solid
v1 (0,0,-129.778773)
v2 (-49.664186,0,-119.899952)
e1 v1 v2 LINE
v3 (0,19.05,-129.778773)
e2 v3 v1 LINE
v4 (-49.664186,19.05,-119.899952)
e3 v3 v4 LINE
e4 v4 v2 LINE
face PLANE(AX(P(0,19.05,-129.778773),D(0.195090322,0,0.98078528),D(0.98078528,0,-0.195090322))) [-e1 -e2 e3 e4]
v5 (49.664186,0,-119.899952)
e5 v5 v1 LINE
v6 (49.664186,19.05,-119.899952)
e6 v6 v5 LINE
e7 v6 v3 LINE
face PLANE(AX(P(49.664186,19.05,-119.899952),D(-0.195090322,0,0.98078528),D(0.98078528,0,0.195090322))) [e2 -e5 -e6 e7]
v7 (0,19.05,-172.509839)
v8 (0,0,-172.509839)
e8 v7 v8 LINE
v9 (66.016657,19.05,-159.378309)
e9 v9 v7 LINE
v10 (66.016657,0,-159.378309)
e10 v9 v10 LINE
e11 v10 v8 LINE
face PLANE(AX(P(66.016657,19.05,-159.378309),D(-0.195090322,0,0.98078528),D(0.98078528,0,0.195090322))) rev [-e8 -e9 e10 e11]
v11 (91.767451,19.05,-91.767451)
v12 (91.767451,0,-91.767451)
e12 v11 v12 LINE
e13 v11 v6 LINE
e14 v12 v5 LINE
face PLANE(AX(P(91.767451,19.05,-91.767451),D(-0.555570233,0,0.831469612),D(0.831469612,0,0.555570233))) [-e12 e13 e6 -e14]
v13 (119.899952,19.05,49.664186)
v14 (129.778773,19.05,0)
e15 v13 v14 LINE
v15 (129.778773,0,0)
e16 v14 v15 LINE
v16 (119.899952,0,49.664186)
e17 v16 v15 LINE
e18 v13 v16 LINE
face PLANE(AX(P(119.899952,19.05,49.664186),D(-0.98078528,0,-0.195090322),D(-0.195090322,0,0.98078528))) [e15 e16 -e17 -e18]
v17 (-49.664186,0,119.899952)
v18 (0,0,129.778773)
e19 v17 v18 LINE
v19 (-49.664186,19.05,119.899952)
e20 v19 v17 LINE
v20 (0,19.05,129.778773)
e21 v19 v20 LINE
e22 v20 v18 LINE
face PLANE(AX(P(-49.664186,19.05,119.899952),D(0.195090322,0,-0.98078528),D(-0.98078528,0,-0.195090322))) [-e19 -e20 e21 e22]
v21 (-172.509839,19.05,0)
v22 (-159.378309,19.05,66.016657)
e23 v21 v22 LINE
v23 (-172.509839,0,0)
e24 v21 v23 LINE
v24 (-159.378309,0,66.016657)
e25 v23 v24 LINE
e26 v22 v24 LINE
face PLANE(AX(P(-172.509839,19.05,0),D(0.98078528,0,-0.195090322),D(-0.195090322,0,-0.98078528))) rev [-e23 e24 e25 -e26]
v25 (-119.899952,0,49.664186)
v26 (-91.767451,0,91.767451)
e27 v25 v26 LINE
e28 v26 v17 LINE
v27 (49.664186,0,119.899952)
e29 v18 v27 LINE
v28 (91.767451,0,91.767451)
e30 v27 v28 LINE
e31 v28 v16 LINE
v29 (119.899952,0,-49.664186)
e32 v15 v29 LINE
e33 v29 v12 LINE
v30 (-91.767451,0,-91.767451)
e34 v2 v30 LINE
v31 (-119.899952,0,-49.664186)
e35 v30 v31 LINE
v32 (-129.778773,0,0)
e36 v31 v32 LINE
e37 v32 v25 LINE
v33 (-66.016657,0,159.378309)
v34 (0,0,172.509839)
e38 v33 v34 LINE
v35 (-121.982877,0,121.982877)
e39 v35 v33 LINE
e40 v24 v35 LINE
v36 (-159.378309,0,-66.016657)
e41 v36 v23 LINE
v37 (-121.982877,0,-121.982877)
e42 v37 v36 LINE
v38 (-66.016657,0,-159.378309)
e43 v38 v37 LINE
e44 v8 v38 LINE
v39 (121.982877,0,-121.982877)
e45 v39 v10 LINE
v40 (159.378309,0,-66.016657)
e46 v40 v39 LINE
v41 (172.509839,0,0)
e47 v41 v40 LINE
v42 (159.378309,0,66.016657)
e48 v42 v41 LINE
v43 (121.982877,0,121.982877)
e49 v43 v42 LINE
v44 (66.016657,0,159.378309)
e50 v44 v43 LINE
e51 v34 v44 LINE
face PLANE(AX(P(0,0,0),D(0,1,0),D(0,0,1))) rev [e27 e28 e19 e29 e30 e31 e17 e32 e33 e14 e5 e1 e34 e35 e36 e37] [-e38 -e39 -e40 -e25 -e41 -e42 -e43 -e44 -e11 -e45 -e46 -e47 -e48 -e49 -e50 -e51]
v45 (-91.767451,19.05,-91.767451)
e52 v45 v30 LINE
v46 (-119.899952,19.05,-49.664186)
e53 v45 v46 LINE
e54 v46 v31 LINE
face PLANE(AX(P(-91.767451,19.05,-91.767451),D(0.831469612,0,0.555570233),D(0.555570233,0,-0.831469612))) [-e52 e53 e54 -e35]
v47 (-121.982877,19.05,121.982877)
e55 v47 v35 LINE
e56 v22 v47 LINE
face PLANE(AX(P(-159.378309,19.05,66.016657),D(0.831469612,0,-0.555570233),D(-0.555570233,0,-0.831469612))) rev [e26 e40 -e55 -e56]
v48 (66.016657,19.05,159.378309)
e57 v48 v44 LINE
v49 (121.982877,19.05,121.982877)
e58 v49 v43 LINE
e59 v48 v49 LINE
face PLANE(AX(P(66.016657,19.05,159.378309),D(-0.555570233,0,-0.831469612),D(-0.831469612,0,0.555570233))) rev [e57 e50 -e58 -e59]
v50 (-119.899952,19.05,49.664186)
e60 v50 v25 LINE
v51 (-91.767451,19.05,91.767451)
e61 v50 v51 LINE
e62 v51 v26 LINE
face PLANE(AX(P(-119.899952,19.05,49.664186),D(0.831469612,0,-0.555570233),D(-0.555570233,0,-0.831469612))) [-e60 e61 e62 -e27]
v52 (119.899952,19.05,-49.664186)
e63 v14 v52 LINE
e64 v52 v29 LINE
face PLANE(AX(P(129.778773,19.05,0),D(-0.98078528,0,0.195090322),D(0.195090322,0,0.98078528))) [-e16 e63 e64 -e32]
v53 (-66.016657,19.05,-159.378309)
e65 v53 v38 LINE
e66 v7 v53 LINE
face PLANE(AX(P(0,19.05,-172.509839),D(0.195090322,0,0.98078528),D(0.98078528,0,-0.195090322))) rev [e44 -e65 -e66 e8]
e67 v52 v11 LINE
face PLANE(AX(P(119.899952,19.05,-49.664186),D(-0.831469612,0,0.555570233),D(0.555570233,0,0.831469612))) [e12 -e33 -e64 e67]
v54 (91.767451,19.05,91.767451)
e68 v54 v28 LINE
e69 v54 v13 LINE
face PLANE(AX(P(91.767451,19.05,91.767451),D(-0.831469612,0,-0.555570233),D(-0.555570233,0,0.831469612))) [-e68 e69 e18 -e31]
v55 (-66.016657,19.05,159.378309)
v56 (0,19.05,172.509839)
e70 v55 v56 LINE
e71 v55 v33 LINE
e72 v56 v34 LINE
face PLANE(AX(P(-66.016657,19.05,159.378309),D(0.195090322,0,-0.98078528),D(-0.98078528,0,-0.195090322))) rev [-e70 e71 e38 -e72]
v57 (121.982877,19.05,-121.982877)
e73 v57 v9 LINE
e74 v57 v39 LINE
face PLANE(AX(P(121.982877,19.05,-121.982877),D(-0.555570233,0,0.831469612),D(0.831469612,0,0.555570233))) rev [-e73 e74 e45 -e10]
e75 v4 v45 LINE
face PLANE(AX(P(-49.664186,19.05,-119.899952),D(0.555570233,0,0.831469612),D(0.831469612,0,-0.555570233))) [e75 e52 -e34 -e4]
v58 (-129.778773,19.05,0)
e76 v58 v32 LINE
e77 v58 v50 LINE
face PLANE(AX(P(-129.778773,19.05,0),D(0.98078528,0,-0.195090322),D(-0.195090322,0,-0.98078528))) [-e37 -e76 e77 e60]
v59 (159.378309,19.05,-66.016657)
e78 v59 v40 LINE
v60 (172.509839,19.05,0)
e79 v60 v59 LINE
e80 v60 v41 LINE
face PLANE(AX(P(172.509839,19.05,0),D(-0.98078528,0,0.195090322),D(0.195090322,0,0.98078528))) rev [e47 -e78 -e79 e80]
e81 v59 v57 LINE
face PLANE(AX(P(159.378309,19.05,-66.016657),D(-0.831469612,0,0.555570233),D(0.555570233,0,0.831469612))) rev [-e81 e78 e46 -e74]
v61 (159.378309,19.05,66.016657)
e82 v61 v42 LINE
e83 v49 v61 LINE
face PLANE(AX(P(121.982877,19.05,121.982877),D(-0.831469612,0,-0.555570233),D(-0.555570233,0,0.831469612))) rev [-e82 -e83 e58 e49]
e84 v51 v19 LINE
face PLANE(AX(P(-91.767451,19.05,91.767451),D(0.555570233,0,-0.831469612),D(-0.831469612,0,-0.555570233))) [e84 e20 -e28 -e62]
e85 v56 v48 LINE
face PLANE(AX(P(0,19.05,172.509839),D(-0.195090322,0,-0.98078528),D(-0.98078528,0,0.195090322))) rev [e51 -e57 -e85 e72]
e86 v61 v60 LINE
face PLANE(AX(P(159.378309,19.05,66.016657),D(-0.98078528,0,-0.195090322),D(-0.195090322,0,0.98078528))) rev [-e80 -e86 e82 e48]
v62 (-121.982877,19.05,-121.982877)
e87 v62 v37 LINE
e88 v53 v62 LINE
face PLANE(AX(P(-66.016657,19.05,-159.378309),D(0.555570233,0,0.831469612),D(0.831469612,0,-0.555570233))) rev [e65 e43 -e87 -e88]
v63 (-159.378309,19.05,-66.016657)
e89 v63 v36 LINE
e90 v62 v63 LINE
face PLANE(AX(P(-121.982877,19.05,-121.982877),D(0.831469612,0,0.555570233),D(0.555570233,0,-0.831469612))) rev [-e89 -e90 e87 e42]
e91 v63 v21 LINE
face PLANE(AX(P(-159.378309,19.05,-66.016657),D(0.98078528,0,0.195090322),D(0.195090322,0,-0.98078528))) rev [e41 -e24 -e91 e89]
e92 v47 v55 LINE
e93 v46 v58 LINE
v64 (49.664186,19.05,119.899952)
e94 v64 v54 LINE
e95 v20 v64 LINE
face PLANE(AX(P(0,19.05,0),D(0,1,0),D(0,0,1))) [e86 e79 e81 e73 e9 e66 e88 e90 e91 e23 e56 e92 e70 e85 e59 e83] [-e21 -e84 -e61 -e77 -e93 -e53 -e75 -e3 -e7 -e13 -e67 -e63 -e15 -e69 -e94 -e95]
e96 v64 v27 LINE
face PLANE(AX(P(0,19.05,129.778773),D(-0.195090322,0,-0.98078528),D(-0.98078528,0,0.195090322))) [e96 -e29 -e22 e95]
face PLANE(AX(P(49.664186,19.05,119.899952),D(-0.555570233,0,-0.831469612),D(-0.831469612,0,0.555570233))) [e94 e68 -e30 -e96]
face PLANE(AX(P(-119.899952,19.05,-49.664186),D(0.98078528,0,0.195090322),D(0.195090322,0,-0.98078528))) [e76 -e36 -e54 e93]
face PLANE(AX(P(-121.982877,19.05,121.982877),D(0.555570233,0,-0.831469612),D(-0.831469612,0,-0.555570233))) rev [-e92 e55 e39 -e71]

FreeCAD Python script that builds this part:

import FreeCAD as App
import Part
import Sketcher

V = App.Vector
Q = App.Units.Quantity


def add_polygon(sketch, points):
    """Adds a closed chain of lines whose ends are joined by coincident constraints."""
    first, n = sketch.GeometryCount, len(points)
    for a, b in zip(points, points[1:] + points[:1]):
        sketch.addGeometry(Part.LineSegment(App.Vector(*a, 0), App.Vector(*b, 0)), False)
    for i in range(n):
        sketch.addConstraint(Sketcher.Constraint("Coincident", first + i, 2, first + (i + 1) % n, 1))

doc = App.newDocument("Part")
body = doc.addObject("PartDesign::Body", "Body")

# Sketch on XZ plane
sketch1 = doc.addObject("Sketcher::SketchObject", "Sketch")
body.addObject(sketch1)
sketch1.AttachmentSupport = (doc.XZ_Plane, [""])
sketch1.MapMode = "FlatFace"
add_polygon(sketch1, [(173, 0), (159, -66), (122, -122), (66, -159), (0, -173), (-66, -159), (-122, -122), (-159, -66), (-173, 0), (-159, 66), (-122, 122), (-66, 159), (0, 173), (66, 159), (122, 122), (159, 66)])  # lines 0-15
add_polygon(sketch1, [(120, -50), (130, 0), (120, 50), (92, 92), (50, 120), (0, 130), (-50, 120), (-92, 92), (-120, 50), (-130, 0), (-120, -50), (-92, -92), (-50, -120), (0, -130), (50, -120), (92, -92)])  # lines 16-31
sketch1.addConstraint([
    Sketcher.Constraint("Symmetric", 0, 2, 8, 2, -1, 1),
    Sketcher.Constraint("Symmetric", 1, 2, 9, 2, -1, 1),
    Sketcher.Constraint("Symmetric", 2, 2, 10, 2, -1, 1),
    Sketcher.Constraint("Symmetric", 3, 2, 11, 2, -1, 1),
    Sketcher.Constraint("Symmetric", 4, 2, 12, 2, -1, 1),
    Sketcher.Constraint("Symmetric", 5, 2, 13, 2, -1, 1),
    Sketcher.Constraint("Symmetric", 6, 2, 14, 2, -1, 1),
    Sketcher.Constraint("Symmetric", 7, 2, 15, 2, -1, 1),
    Sketcher.Constraint("Symmetric", 16, 2, 24, 2, -1, 1),
    Sketcher.Constraint("Symmetric", 17, 2, 25, 2, -1, 1),
    Sketcher.Constraint("Symmetric", 18, 2, 26, 2, -1, 1),
    Sketcher.Constraint("Symmetric", 19, 2, 27, 2, -1, 1),
    Sketcher.Constraint("Symmetric", 20, 2, 28, 2, -1, 1),
    Sketcher.Constraint("Symmetric", 21, 2, 29, 2, -1, 1),
    Sketcher.Constraint("Symmetric", 22, 2, 30, 2, -1, 1),
    Sketcher.Constraint("Symmetric", 23, 2, 31, 2, -1, 1),
    Sketcher.Constraint("Symmetric", 2, 2, 4, 2, -2),
    Sketcher.Constraint("Symmetric", 1, 2, 5, 2, -2),
    Sketcher.Constraint("Symmetric", 0, 2, 6, 2, -2),
    Sketcher.Constraint("Symmetric", 19, 2, 21, 2, -2),
    Sketcher.Constraint("Symmetric", 18, 2, 22, 2, -2),
    Sketcher.Constraint("Symmetric", 17, 2, 23, 2, -2),
    Sketcher.Constraint("PointOnObject", 3, 2, -2),
    Sketcher.Constraint("PointOnObject", 7, 2, -1),
    Sketcher.Constraint("PointOnObject", 16, 2, -1),
    Sketcher.Constraint("PointOnObject", 20, 2, -2),
    Sketcher.Constraint("Perpendicular", 0, 4),
    Sketcher.Constraint("Perpendicular", 1, 5),
    Sketcher.Constraint("Perpendicular", 12, 16),
    Sketcher.Constraint("Parallel", 14, 18),
    Sketcher.Constraint("Parallel", 13, 19),
    Sketcher.Constraint("Perpendicular", 16, 20),
    Sketcher.Constraint("Equal", 0, 1),
    Sketcher.Constraint("Equal", 1, 2),
    Sketcher.Constraint("Equal", 2, 3),
    Sketcher.Constraint("Equal", 17, 18),
    Sketcher.Constraint("Equal", 18, 19),
    Sketcher.Constraint("Equal", 19, 20),
    Sketcher.Constraint("Distance", 0, Q("2.65 in")),
    Sketcher.Constraint("Angle", 0, Q("-101.25 deg")),
    Sketcher.Constraint("Angle", 1, Q("-123.75 deg")),
    Sketcher.Constraint("DistanceX", 18, 2, 17, 2, Q("28.132502 mm")),
])
pad1 = doc.addObject("PartDesign::Pad", "Pad")
body.addObject(pad1)
pad1.Profile = sketch1
pad1.Length = Q("0.75 in")
pad1.Reversed = True

doc.recompute()
